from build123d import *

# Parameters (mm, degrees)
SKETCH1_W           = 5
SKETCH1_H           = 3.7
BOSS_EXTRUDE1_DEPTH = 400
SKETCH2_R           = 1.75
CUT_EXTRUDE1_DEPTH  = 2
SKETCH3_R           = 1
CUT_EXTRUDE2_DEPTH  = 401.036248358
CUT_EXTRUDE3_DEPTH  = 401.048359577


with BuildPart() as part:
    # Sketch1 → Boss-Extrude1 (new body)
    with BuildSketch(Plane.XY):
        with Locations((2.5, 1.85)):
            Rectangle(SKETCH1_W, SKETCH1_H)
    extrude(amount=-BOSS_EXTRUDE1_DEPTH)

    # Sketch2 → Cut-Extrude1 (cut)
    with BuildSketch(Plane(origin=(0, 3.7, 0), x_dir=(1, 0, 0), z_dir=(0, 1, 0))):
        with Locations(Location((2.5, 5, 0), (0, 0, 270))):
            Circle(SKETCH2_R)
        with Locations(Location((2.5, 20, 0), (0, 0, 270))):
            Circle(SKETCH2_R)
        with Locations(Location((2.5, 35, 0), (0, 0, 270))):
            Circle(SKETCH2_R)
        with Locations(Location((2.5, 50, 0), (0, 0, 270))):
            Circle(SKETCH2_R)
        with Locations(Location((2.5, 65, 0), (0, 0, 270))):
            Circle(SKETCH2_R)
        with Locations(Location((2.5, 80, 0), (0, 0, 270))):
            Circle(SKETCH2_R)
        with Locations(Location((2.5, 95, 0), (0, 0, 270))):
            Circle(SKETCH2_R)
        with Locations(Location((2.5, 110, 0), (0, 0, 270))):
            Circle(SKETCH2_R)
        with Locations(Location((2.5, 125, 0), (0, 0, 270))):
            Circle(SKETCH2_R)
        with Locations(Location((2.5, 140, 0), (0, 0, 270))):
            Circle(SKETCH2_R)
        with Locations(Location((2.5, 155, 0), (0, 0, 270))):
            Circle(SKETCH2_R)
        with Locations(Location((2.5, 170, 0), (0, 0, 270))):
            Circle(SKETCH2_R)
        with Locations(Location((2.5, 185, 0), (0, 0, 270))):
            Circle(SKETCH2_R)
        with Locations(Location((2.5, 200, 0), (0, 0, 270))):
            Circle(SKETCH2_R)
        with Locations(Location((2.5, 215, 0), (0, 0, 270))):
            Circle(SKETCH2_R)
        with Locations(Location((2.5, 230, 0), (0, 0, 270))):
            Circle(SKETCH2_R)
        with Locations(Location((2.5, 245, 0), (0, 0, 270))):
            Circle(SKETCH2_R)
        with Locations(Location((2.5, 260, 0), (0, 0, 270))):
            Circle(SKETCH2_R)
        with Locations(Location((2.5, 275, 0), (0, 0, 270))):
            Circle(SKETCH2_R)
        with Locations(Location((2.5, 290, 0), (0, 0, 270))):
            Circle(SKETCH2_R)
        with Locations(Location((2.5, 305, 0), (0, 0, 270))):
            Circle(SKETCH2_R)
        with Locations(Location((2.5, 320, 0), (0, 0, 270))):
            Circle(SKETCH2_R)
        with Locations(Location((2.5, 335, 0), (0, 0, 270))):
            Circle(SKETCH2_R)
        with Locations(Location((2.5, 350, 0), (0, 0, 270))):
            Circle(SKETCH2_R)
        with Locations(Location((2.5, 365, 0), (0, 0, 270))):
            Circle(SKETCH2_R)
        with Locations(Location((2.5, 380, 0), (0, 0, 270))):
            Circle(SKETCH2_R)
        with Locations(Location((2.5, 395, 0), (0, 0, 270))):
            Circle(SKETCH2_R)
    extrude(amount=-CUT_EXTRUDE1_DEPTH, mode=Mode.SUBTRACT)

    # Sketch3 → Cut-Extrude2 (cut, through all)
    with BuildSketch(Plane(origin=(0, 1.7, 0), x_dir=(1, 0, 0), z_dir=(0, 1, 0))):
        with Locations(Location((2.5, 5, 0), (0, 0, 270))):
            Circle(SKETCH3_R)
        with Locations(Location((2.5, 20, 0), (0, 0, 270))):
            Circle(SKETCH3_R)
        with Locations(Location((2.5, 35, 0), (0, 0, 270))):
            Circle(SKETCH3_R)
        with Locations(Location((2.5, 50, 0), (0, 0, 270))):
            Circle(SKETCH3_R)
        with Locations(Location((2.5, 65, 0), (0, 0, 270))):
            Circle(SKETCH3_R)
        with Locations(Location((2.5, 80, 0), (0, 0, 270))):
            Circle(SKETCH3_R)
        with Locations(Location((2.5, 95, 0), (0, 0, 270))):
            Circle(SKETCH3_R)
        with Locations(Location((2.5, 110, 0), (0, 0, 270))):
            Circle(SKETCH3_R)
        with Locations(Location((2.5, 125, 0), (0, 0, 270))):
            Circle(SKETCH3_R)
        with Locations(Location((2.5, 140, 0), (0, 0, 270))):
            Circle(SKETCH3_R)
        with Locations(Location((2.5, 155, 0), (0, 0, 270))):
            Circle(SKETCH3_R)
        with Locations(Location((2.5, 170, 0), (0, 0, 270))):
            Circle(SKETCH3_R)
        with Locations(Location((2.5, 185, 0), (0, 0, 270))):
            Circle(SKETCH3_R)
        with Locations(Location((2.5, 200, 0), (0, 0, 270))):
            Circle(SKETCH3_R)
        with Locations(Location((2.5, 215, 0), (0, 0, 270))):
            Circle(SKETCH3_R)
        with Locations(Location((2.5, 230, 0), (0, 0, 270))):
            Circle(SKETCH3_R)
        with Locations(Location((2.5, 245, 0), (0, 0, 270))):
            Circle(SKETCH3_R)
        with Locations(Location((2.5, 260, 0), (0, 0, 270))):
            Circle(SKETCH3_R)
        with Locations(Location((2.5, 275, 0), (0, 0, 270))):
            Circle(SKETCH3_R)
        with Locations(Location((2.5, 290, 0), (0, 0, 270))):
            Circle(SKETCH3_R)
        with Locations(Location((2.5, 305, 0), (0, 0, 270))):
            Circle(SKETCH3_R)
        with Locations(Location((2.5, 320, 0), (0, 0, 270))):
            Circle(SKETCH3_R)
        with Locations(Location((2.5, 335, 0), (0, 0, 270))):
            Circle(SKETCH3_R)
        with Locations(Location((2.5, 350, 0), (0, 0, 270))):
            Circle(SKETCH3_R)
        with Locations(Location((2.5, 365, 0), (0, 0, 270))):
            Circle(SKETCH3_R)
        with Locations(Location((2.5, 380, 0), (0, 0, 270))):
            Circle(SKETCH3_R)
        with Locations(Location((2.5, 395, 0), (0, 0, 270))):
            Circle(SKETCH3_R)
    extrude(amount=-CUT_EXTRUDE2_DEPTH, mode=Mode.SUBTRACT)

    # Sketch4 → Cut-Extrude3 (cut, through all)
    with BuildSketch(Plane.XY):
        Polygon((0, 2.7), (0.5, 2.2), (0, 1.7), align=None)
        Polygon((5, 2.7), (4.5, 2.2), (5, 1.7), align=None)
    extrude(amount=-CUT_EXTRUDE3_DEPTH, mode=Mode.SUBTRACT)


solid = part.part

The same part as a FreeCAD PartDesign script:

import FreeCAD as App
import Part
import Sketcher
from FreeCAD import Vector

doc = App.newDocument("Part")
body = doc.addObject("PartDesign::Body", "Body")

sketch1 = body.newObject("Sketcher::SketchObject", "Sketch")
sketch1.AttachmentSupport = (doc.getObject("XY_Plane"), [""])
sketch1.MapMode = "FlatFace"
sketch1.addGeometry(Part.LineSegment(Vector(0, 3.7, 0), Vector(0, 0, 0)), False)
sketch1.addGeometry(Part.LineSegment(Vector(0, 0, 0), Vector(5, 0, 0)), False)
sketch1.addGeometry(Part.LineSegment(Vector(5, 0, 0), Vector(5, 3.7, 0)), False)
sketch1.addGeometry(Part.LineSegment(Vector(5, 3.7, 0), Vector(0, 3.7, 0)), False)
sketch1.addConstraint(Sketcher.Constraint("Coincident", 0, 2, 1, 1))
sketch1.addConstraint(Sketcher.Constraint("Coincident", 1, 2, 2, 1))
sketch1.addConstraint(Sketcher.Constraint("Coincident", 2, 2, 3, 1))
sketch1.addConstraint(Sketcher.Constraint("Coincident", 3, 2, 0, 1))
sketch1.addConstraint(Sketcher.Constraint("Vertical", 0))
sketch1.addConstraint(Sketcher.Constraint("Horizontal", 1))
sketch1.addConstraint(Sketcher.Constraint("Vertical", 2))
sketch1.addConstraint(Sketcher.Constraint("Horizontal", 3))
sketch1.addConstraint(Sketcher.Constraint("Coincident", 0, 2, -1, 1))
sketch1.addConstraint(Sketcher.Constraint("DistanceX", 1, 1, 1, 2, 5.0))
sketch1.addConstraint(Sketcher.Constraint("DistanceY", 0, 2, 0, 1, 3.7))
pad1 = body.newObject("PartDesign::Pad", "Pad")
pad1.Profile = sketch1
pad1.Length = 400
pad1.Reversed = True

sketch2 = body.newObject("Sketcher::SketchObject", "Sketch001")
sketch2.AttachmentSupport = (doc.getObject("XZ_Plane"), [""])
sketch2.MapMode = "FlatFace"
sketch2.AttachmentOffset = App.Placement(Vector(0, 0, -3.7), App.Rotation())
sketch2.addGeometry(Part.Circle(Vector(2.5, -5, 0), Vector(0, 0, 1), 1.8), False)
sketch2.addGeometry(Part.Circle(Vector(2.5, -20, 0), Vector(0, 0, 1), 1.8), False)
sketch2.addGeometry(Part.Circle(Vector(2.5, -35, 0), Vector(0, 0, 1), 1.8), False)
sketch2.addGeometry(Part.Circle(Vector(2.5, -50, 0), Vector(0, 0, 1), 1.8), False)
sketch2.addGeometry(Part.Circle(Vector(2.5, -65, 0), Vector(0, 0, 1), 1.8), False)
sketch2.addGeometry(Part.Circle(Vector(2.5, -80, 0), Vector(0, 0, 1), 1.8), False)
sketch2.addGeometry(Part.Circle(Vector(2.5, -95, 0), Vector(0, 0, 1), 1.8), False)
sketch2.addGeometry(Part.Circle(Vector(2.5, -110, 0), Vector(0, 0, 1), 1.8), False)
sketch2.addGeometry(Part.Circle(Vector(2.5, -125, 0), Vector(0, 0, 1), 1.8), False)
sketch2.addGeometry(Part.Circle(Vector(2.5, -140, 0), Vector(0, 0, 1), 1.8), False)
sketch2.addGeometry(Part.Circle(Vector(2.5, -155, 0), Vector(0, 0, 1), 1.8), False)
sketch2.addGeometry(Part.Circle(Vector(2.5, -170, 0), Vector(0, 0, 1), 1.8), False)
sketch2.addGeometry(Part.Circle(Vector(2.5, -185, 0), Vector(0, 0, 1), 1.8), False)
sketch2.addGeometry(Part.Circle(Vector(2.5, -200, 0), Vector(0, 0, 1), 1.8), False)
sketch2.addGeometry(Part.Circle(Vector(2.5, -215, 0), Vector(0, 0, 1), 1.8), False)
sketch2.addGeometry(Part.Circle(Vector(2.5, -230, 0), Vector(0, 0, 1), 1.8), False)
sketch2.addGeometry(Part.Circle(Vector(2.5, -245, 0), Vector(0, 0, 1), 1.8), False)
sketch2.addGeometry(Part.Circle(Vector(2.5, -260, 0), Vector(0, 0, 1), 1.8), False)
sketch2.addGeometry(Part.Circle(Vector(2.5, -275, 0), Vector(0, 0, 1), 1.8), False)
sketch2.addGeometry(Part.Circle(Vector(2.5, -290, 0), Vector(0, 0, 1), 1.8), False)
sketch2.addGeometry(Part.Circle(Vector(2.5, -305, 0), Vector(0, 0, 1), 1.8), False)
sketch2.addGeometry(Part.Circle(Vector(2.5, -320, 0), Vector(0, 0, 1), 1.8), False)
sketch2.addGeometry(Part.Circle(Vector(2.5, -335, 0), Vector(0, 0, 1), 1.8), False)
sketch2.addGeometry(Part.Circle(Vector(2.5, -350, 0), Vector(0, 0, 1), 1.8), False)
sketch2.addGeometry(Part.Circle(Vector(2.5, -365, 0), Vector(0, 0, 1), 1.8), False)
sketch2.addGeometry(Part.Circle(Vector(2.5, -380, 0), Vector(0, 0, 1), 1.8), False)
sketch2.addGeometry(Part.Circle(Vector(2.5, -395, 0), Vector(0, 0, 1), 1.8), False)
sketch2.addConstraint(Sketcher.Constraint("Equal", 0, 1))
sketch2.addConstraint(Sketcher.Constraint("Equal", 1, 2))
sketch2.addConstraint(Sketcher.Constraint("Equal", 2, 3))
sketch2.addConstraint(Sketcher.Constraint("Equal", 3, 4))
sketch2.addConstraint(Sketcher.Constraint("Equal", 4, 5))
sketch2.addConstraint(Sketcher.Constraint("Equal", 5, 6))
sketch2.addConstraint(Sketcher.Constraint("Equal", 6, 7))
sketch2.addConstraint(Sketcher.Constraint("Equal", 7, 8))
sketch2.addConstraint(Sketcher.Constraint("Equal", 8, 9))
sketch2.addConstraint(Sketcher.Constraint("Equal", 9, 10))
sketch2.addConstraint(Sketcher.Constraint("Equal", 10, 11))
sketch2.addConstraint(Sketcher.Constraint("Equal", 11, 12))
sketch2.addConstraint(Sketcher.Constraint("Equal", 12, 13))
sketch2.addConstraint(Sketcher.Constraint("Equal", 13, 14))
sketch2.addConstraint(Sketcher.Constraint("Equal", 14, 15))
sketch2.addConstraint(Sketcher.Constraint("Equal", 15, 16))
sketch2.addConstraint(Sketcher.Constraint("Equal", 16, 17))
sketch2.addConstraint(Sketcher.Constraint("Equal", 17, 18))
sketch2.addConstraint(Sketcher.Constraint("Equal", 18, 19))
sketch2.addConstraint(Sketcher.Constraint("Equal", 19, 20))
sketch2.addConstraint(Sketcher.Constraint("Equal", 20, 21))
sketch2.addConstraint(Sketcher.Constraint("Equal", 21, 22))
sketch2.addConstraint(Sketcher.Constraint("Equal", 22, 23))
sketch2.addConstraint(Sketcher.Constraint("Equal", 23, 24))
sketch2.addConstraint(Sketcher.Constraint("Equal", 24, 25))
sketch2.addConstraint(Sketcher.Constraint("Equal", 25, 26))
sketch2.addConstraint(Sketcher.Constraint("Vertical", 0, 3, 1, 3))
sketch2.addConstraint(Sketcher.Constraint("Vertical", 1, 3, 2, 3))
sketch2.addConstraint(Sketcher.Constraint("Vertical", 2, 3, 3, 3))
sketch2.addConstraint(Sketcher.Constraint("Vertical", 3, 3, 4, 3))
sketch2.addConstraint(Sketcher.Constraint("Vertical", 4, 3, 5, 3))
sketch2.addConstraint(Sketcher.Constraint("Vertical", 5, 3, 6, 3))
sketch2.addConstraint(Sketcher.Constraint("Vertical", 6, 3, 7, 3))
sketch2.addConstraint(Sketcher.Constraint("Vertical", 7, 3, 8, 3))
sketch2.addConstraint(Sketcher.Constraint("Vertical", 8, 3, 9, 3))
sketch2.addConstraint(Sketcher.Constraint("Vertical", 9, 3, 10, 3))
sketch2.addConstraint(Sketcher.Constraint("Vertical", 10, 3, 11, 3))
sketch2.addConstraint(Sketcher.Constraint("Vertical", 11, 3, 12, 3))
sketch2.addConstraint(Sketcher.Constraint("Vertical", 12, 3, 13, 3))
sketch2.addConstraint(Sketcher.Constraint("Vertical", 13, 3, 14, 3))
sketch2.addConstraint(Sketcher.Constraint("Vertical", 14, 3, 15, 3))
sketch2.addConstraint(Sketcher.Constraint("Vertical", 15, 3, 16, 3))
sketch2.addConstraint(Sketcher.Constraint("Vertical", 16, 3, 17, 3))
sketch2.addConstraint(Sketcher.Constraint("Vertical", 17, 3, 18, 3))
sketch2.addConstraint(Sketcher.Constraint("Vertical", 18, 3, 19, 3))
sketch2.addConstraint(Sketcher.Constraint("Vertical", 19, 3, 20, 3))
sketch2.addConstraint(Sketcher.Constraint("Vertical", 20, 3, 21, 3))
sketch2.addConstraint(Sketcher.Constraint("Vertical", 21, 3, 22, 3))
sketch2.addConstraint(Sketcher.Constraint("Vertical", 22, 3, 23, 3))
sketch2.addConstraint(Sketcher.Constraint("Vertical", 23, 3, 24, 3))
sketch2.addConstraint(Sketcher.Constraint("Vertical", 24, 3, 25, 3))
sketch2.addConstraint(Sketcher.Constraint("Vertical", 25, 3, 26, 3))
sketch2.addConstraint(Sketcher.Constraint("Diameter", 0, 3.5))
sketch2.addConstraint(Sketcher.Constraint("DistanceY", 0, 3, -1, 1, 5.0))
sketch2.addConstraint(Sketcher.Constraint("DistanceY", 1, 3, -1, 1, 20.0))
sketch2.addConstraint(Sketcher.Constraint("DistanceY", 2, 3, -1, 1, 35.0))
sketch2.addConstraint(Sketcher.Constraint("DistanceY", 3, 3, -1, 1, 50.0))
sketch2.addConstraint(Sketcher.Constraint("DistanceY", 4, 3, -1, 1, 65.0))
sketch2.addConstraint(Sketcher.Constraint("DistanceY", 5, 3, -1, 1, 80.0))
sketch2.addConstraint(Sketcher.Constraint("DistanceY", 6, 3, -1, 1, 95.0))
sketch2.addConstraint(Sketcher.Constraint("DistanceY", 7, 3, -1, 1, 110.0))
sketch2.addConstraint(Sketcher.Constraint("DistanceY", 8, 3, -1, 1, 125.0))
sketch2.addConstraint(Sketcher.Constraint("DistanceY", 9, 3, -1, 1, 140.0))
sketch2.addConstraint(Sketcher.Constraint("DistanceY", 10, 3, -1, 1, 155.0))
sketch2.addConstraint(Sketcher.Constraint("DistanceY", 11, 3, -1, 1, 170.0))
sketch2.addConstraint(Sketcher.Constraint("DistanceY", 12, 3, -1, 1, 185.0))
sketch2.addConstraint(Sketcher.Constraint("DistanceY", 13, 3, -1, 1, 200.0))
sketch2.addConstraint(Sketcher.Constraint("DistanceY", 14, 3, -1, 1, 215.0))
sketch2.addConstraint(Sketcher.Constraint("DistanceY", 15, 3, -1, 1, 230.0))
sketch2.addConstraint(Sketcher.Constraint("DistanceY", 16, 3, -1, 1, 245.0))
sketch2.addConstraint(Sketcher.Constraint("DistanceY", 17, 3, -1, 1, 260.0))
sketch2.addConstraint(Sketcher.Constraint("DistanceY", 18, 3, -1, 1, 275.0))
sketch2.addConstraint(Sketcher.Constraint("DistanceY", 19, 3, -1, 1, 290.0))
sketch2.addConstraint(Sketcher.Constraint("DistanceY", 20, 3, -1, 1, 305.0))
sketch2.addConstraint(Sketcher.Constraint("DistanceY", 21, 3, -1, 1, 320.0))
sketch2.addConstraint(Sketcher.Constraint("DistanceY", 22, 3, -1, 1, 335.0))
sketch2.addConstraint(Sketcher.Constraint("DistanceY", 23, 3, -1, 1, 350.0))
sketch2.addConstraint(Sketcher.Constraint("DistanceY", 24, 3, -1, 1, 365.0))
sketch2.addConstraint(Sketcher.Constraint("DistanceY", 25, 3, -1, 1, 380.0))
sketch2.addConstraint(Sketcher.Constraint("DistanceY", 26, 3, -1, 1, 395.0))
sketch2.addConstraint(Sketcher.Constraint("DistanceX", -1, 1, 0, 3, 2.5))
pocket1 = body.newObject("PartDesign::Pocket", "Pocket")
pocket1.Profile = sketch2
pocket1.Length = 2
pocket1.Reversed = True

sketch3 = body.newObject("Sketcher::SketchObject", "Sketch002")
sketch3.AttachmentSupport = (doc.getObject("XZ_Plane"), [""])
sketch3.MapMode = "FlatFace"
sketch3.AttachmentOffset = App.Placement(Vector(0, 0, -1.7), App.Rotation())
sketch3.addGeometry(Part.Circle(Vector(2.5, -5, 0), Vector(0, 0, 1), 1), False)
sketch3.addGeometry(Part.Circle(Vector(2.5, -20, 0), Vector(0, 0, 1), 1), False)
sketch3.addGeometry(Part.Circle(Vector(2.5, -35, 0), Vector(0, 0, 1), 1), False)
sketch3.addGeometry(Part.Circle(Vector(2.5, -50, 0), Vector(0, 0, 1), 1), False)
sketch3.addGeometry(Part.Circle(Vector(2.5, -65, 0), Vector(0, 0, 1), 1), False)
sketch3.addGeometry(Part.Circle(Vector(2.5, -80, 0), Vector(0, 0, 1), 1), False)
sketch3.addGeometry(Part.Circle(Vector(2.5, -95, 0), Vector(0, 0, 1), 1), False)
sketch3.addGeometry(Part.Circle(Vector(2.5, -110, 0), Vector(0, 0, 1), 1), False)
sketch3.addGeometry(Part.Circle(Vector(2.5, -125, 0), Vector(0, 0, 1), 1), False)
sketch3.addGeometry(Part.Circle(Vector(2.5, -140, 0), Vector(0, 0, 1), 1), False)
sketch3.addGeometry(Part.Circle(Vector(2.5, -155, 0), Vector(0, 0, 1), 1), False)
sketch3.addGeometry(Part.Circle(Vector(2.5, -170, 0), Vector(0, 0, 1), 1), False)
sketch3.addGeometry(Part.Circle(Vector(2.5, -185, 0), Vector(0, 0, 1), 1), False)
sketch3.addGeometry(Part.Circle(Vector(2.5, -200, 0), Vector(0, 0, 1), 1), False)
sketch3.addGeometry(Part.Circle(Vector(2.5, -215, 0), Vector(0, 0, 1), 1), False)
sketch3.addGeometry(Part.Circle(Vector(2.5, -230, 0), Vector(0, 0, 1), 1), False)
sketch3.addGeometry(Part.Circle(Vector(2.5, -245, 0), Vector(0, 0, 1), 1), False)
sketch3.addGeometry(Part.Circle(Vector(2.5, -260, 0), Vector(0, 0, 1), 1), False)
sketch3.addGeometry(Part.Circle(Vector(2.5, -275, 0), Vector(0, 0, 1), 1), False)
sketch3.addGeometry(Part.Circle(Vector(2.5, -290, 0), Vector(0, 0, 1), 1), False)
sketch3.addGeometry(Part.Circle(Vector(2.5, -305, 0), Vector(0, 0, 1), 1), False)
sketch3.addGeometry(Part.Circle(Vector(2.5, -320, 0), Vector(0, 0, 1), 1), False)
sketch3.addGeometry(Part.Circle(Vector(2.5, -335, 0), Vector(0, 0, 1), 1), False)
sketch3.addGeometry(Part.Circle(Vector(2.5, -350, 0), Vector(0, 0, 1), 1), False)
sketch3.addGeometry(Part.Circle(Vector(2.5, -365, 0), Vector(0, 0, 1), 1), False)
sketch3.addGeometry(Part.Circle(Vector(2.5, -380, 0), Vector(0, 0, 1), 1), False)
sketch3.addGeometry(Part.Circle(Vector(2.5, -395, 0), Vector(0, 0, 1), 1), False)
sketch3.addConstraint(Sketcher.Constraint("Equal", 0, 1))
sketch3.addConstraint(Sketcher.Constraint("Equal", 1, 2))
sketch3.addConstraint(Sketcher.Constraint("Equal", 2, 3))
sketch3.addConstraint(Sketcher.Constraint("Equal", 3, 4))
sketch3.addConstraint(Sketcher.Constraint("Equal", 4, 5))
sketch3.addConstraint(Sketcher.Constraint("Equal", 5, 6))
sketch3.addConstraint(Sketcher.Constraint("Equal", 6, 7))
sketch3.addConstraint(Sketcher.Constraint("Equal", 7, 8))
sketch3.addConstraint(Sketcher.Constraint("Equal", 8, 9))
sketch3.addConstraint(Sketcher.Constraint("Equal", 9, 10))
sketch3.addConstraint(Sketcher.Constraint("Equal", 10, 11))
sketch3.addConstraint(Sketcher.Constraint("Equal", 11, 12))
sketch3.addConstraint(Sketcher.Constraint("Equal", 12, 13))
sketch3.addConstraint(Sketcher.Constraint("Equal", 13, 14))
sketch3.addConstraint(Sketcher.Constraint("Equal", 14, 15))
sketch3.addConstraint(Sketcher.Constraint("Equal", 15, 16))
sketch3.addConstraint(Sketcher.Constraint("Equal", 16, 17))
sketch3.addConstraint(Sketcher.Constraint("Equal", 17, 18))
sketch3.addConstraint(Sketcher.Constraint("Equal", 18, 19))
sketch3.addConstraint(Sketcher.Constraint("Equal", 19, 20))
sketch3.addConstraint(Sketcher.Constraint("Equal", 20, 21))
sketch3.addConstraint(Sketcher.Constraint("Equal", 21, 22))
sketch3.addConstraint(Sketcher.Constraint("Equal", 22, 23))
sketch3.addConstraint(Sketcher.Constraint("Equal", 23, 24))
sketch3.addConstraint(Sketcher.Constraint("Equal", 24, 25))
sketch3.addConstraint(Sketcher.Constraint("Equal", 25, 26))
sketch3.addConstraint(Sketcher.Constraint("Vertical", 0, 3, 1, 3))
sketch3.addConstraint(Sketcher.Constraint("Vertical", 1, 3, 2, 3))
sketch3.addConstraint(Sketcher.Constraint("Vertical", 2, 3, 3, 3))
sketch3.addConstraint(Sketcher.Constraint("Vertical", 3, 3, 4, 3))
sketch3.addConstraint(Sketcher.Constraint("Vertical", 4, 3, 5, 3))
sketch3.addConstraint(Sketcher.Constraint("Vertical", 5, 3, 6, 3))
sketch3.addConstraint(Sketcher.Constraint("Vertical", 6, 3, 7, 3))
sketch3.addConstraint(Sketcher.Constraint("Vertical", 7, 3, 8, 3))
sketch3.addConstraint(Sketcher.Constraint("Vertical", 8, 3, 9, 3))
sketch3.addConstraint(Sketcher.Constraint("Vertical", 9, 3, 10, 3))
sketch3.addConstraint(Sketcher.Constraint("Vertical", 10, 3, 11, 3))
sketch3.addConstraint(Sketcher.Constraint("Vertical", 11, 3, 12, 3))
sketch3.addConstraint(Sketcher.Constraint("Vertical", 12, 3, 13, 3))
sketch3.addConstraint(Sketcher.Constraint("Vertical", 13, 3, 14, 3))
sketch3.addConstraint(Sketcher.Constraint("Vertical", 14, 3, 15, 3))
sketch3.addConstraint(Sketcher.Constraint("Vertical", 15, 3, 16, 3))
sketch3.addConstraint(Sketcher.Constraint("Vertical", 16, 3, 17, 3))
sketch3.addConstraint(Sketcher.Constraint("Vertical", 17, 3, 18, 3))
sketch3.addConstraint(Sketcher.Constraint("Vertical", 18, 3, 19, 3))
sketch3.addConstraint(Sketcher.Constraint("Vertical", 19, 3, 20, 3))
sketch3.addConstraint(Sketcher.Constraint("Vertical", 20, 3, 21, 3))
sketch3.addConstraint(Sketcher.Constraint("Vertical", 21, 3, 22, 3))
sketch3.addConstraint(Sketcher.Constraint("Vertical", 22, 3, 23, 3))
sketch3.addConstraint(Sketcher.Constraint("Vertical", 23, 3, 24, 3))
sketch3.addConstraint(Sketcher.Constraint("Vertical", 24, 3, 25, 3))
sketch3.addConstraint(Sketcher.Constraint("Vertical", 25, 3, 26, 3))
sketch3.addConstraint(Sketcher.Constraint("Diameter", 0, 2.0))
sketch3.addConstraint(Sketcher.Constraint("DistanceY", 0, 3, -1, 1, 5.0))
sketch3.addConstraint(Sketcher.Constraint("DistanceY", 1, 3, -1, 1, 20.0))
sketch3.addConstraint(Sketcher.Constraint("DistanceY", 2, 3, -1, 1, 35.0))
sketch3.addConstraint(Sketcher.Constraint("DistanceY", 3, 3, -1, 1, 50.0))
sketch3.addConstraint(Sketcher.Constraint("DistanceY", 4, 3, -1, 1, 65.0))
sketch3.addConstraint(Sketcher.Constraint("DistanceY", 5, 3, -1, 1, 80.0))
sketch3.addConstraint(Sketcher.Constraint("DistanceY", 6, 3, -1, 1, 95.0))
sketch3.addConstraint(Sketcher.Constraint("DistanceY", 7, 3, -1, 1, 110.0))
sketch3.addConstraint(Sketcher.Constraint("DistanceY", 8, 3, -1, 1, 125.0))
sketch3.addConstraint(Sketcher.Constraint("DistanceY", 9, 3, -1, 1, 140.0))
sketch3.addConstraint(Sketcher.Constraint("DistanceY", 10, 3, -1, 1, 155.0))
sketch3.addConstraint(Sketcher.Constraint("DistanceY", 11, 3, -1, 1, 170.0))
sketch3.addConstraint(Sketcher.Constraint("DistanceY", 12, 3, -1, 1, 185.0))
sketch3.addConstraint(Sketcher.Constraint("DistanceY", 13, 3, -1, 1, 200.0))
sketch3.addConstraint(Sketcher.Constraint("DistanceY", 14, 3, -1, 1, 215.0))
sketch3.addConstraint(Sketcher.Constraint("DistanceY", 15, 3, -1, 1, 230.0))
sketch3.addConstraint(Sketcher.Constraint("DistanceY", 16, 3, -1, 1, 245.0))
sketch3.addConstraint(Sketcher.Constraint("DistanceY", 17, 3, -1, 1, 260.0))
sketch3.addConstraint(Sketcher.Constraint("DistanceY", 18, 3, -1, 1, 275.0))
sketch3.addConstraint(Sketcher.Constraint("DistanceY", 19, 3, -1, 1, 290.0))
sketch3.addConstraint(Sketcher.Constraint("DistanceY", 20, 3, -1, 1, 305.0))
sketch3.addConstraint(Sketcher.Constraint("DistanceY", 21, 3, -1, 1, 320.0))
sketch3.addConstraint(Sketcher.Constraint("DistanceY", 22, 3, -1, 1, 335.0))
sketch3.addConstraint(Sketcher.Constraint("DistanceY", 23, 3, -1, 1, 350.0))
sketch3.addConstraint(Sketcher.Constraint("DistanceY", 24, 3, -1, 1, 365.0))
sketch3.addConstraint(Sketcher.Constraint("DistanceY", 25, 3, -1, 1, 380.0))
sketch3.addConstraint(Sketcher.Constraint("DistanceY", 26, 3, -1, 1, 395.0))
sketch3.addConstraint(Sketcher.Constraint("DistanceX", -1, 1, 0, 3, 2.5))
pocket2 = body.newObject("PartDesign::Pocket", "Pocket001")
pocket2.Profile = sketch3
pocket2.Type = "ThroughAll"
pocket2.Reversed = True

sketch4 = body.newObject("Sketcher::SketchObject", "Sketch003")
sketch4.AttachmentSupport = (doc.getObject("XY_Plane"), [""])
sketch4.MapMode = "FlatFace"
sketch4.addGeometry(Part.LineSegment(Vector(0.5, 2.2, 0), Vector(0, 2.7, 0)), False)
sketch4.addGeometry(Part.LineSegment(Vector(0, 2.7, 0), Vector(0, 1.7, 0)), False)
sketch4.addGeometry(Part.LineSegment(Vector(0, 1.7, 0), Vector(0.5, 2.2, 0)), False)
sketch4.addGeometry(Part.LineSegment(Vector(5, 2.7, 0), Vector(4.5, 2.2, 0)), False)
sketch4.addGeometry(Part.LineSegment(Vector(4.5, 2.2, 0), Vector(5, 1.7, 0)), False)
sketch4.addGeometry(Part.LineSegment(Vector(5, 1.7, 0), Vector(5, 2.7, 0)), False)
sketch4.addConstraint(Sketcher.Constraint("Coincident", 0, 2, 1, 1))
sketch4.addConstraint(Sketcher.Constraint("Coincident", 1, 2, 2, 1))
sketch4.addConstraint(Sketcher.Constraint("Coincident", 2, 2, 0, 1))
sketch4.addConstraint(Sketcher.Constraint("Coincident", 3, 2, 4, 1))
sketch4.addConstraint(Sketcher.Constraint("Coincident", 4, 2, 5, 1))
sketch4.addConstraint(Sketcher.Constraint("Coincident", 5, 2, 3, 1))
sketch4.addConstraint(Sketcher.Constraint("Vertical", 1))
sketch4.addConstraint(Sketcher.Constraint("Vertical", 5))
sketch4.addConstraint(Sketcher.Constraint("PointOnObject", 0, 2, -2))
sketch4.addConstraint(Sketcher.Constraint("Perpendicular", 0, 2))
sketch4.addConstraint(Sketcher.Constraint("Parallel", 2, 3))
sketch4.addConstraint(Sketcher.Constraint("Perpendicular", 3, 4))
sketch4.addConstraint(Sketcher.Constraint("Horizontal", 2, 2, 3, 2))
sketch4.addConstraint(Sketcher.Constraint("Horizontal", 1, 2, 4, 2))
sketch4.addConstraint(Sketcher.Constraint("Horizontal", 0, 2, 5, 2))
sketch4.addConstraint(Sketcher.Constraint("DistanceY", 1, 2, 1, 1, 1.0))
sketch4.addConstraint(Sketcher.Constraint("DistanceX", -1, 1, 4, 2, 5.0))
sketch4.addConstraint(Sketcher.Constraint("DistanceY", -1, 1, 0, 2, 2.7))
pocket3 = body.newObject("PartDesign::Pocket", "Pocket002")
pocket3.Profile = sketch4
pocket3.Type = "ThroughAll"

doc.recompute()
